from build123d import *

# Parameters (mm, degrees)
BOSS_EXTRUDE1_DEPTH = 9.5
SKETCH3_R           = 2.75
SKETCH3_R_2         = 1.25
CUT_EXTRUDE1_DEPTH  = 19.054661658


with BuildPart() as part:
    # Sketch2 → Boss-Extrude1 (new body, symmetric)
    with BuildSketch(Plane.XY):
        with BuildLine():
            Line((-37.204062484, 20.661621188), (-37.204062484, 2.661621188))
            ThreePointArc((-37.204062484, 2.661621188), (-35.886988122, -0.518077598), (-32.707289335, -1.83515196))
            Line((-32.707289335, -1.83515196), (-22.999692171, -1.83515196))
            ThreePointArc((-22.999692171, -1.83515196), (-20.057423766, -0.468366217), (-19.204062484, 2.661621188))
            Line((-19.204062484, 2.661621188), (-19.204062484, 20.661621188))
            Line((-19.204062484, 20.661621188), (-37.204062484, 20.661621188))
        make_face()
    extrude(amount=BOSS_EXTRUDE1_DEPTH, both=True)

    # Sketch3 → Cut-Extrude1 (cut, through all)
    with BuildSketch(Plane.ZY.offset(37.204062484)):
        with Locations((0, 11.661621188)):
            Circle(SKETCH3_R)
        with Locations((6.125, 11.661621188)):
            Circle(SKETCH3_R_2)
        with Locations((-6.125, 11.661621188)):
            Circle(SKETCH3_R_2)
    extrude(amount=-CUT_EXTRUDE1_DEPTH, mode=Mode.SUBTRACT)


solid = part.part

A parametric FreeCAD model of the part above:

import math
import FreeCAD as App
import Part
import Sketcher
from FreeCAD import Vector
Q = App.Units.Quantity

doc = App.newDocument("Part")
body = doc.addObject("PartDesign::Body", "Body")

sketch1 = doc.addObject("Sketcher::SketchObject", "Sketch")
body.addObject(sketch1)
sketch1.AttachmentSupport = (doc.XY_Plane, [""])
sketch1.MapMode = "FlatFace"
sketch1.addGeometry(Part.LineSegment(Vector(-37.2, 20.7, 0), Vector(-37.2, 2.7, 0)), False)
sketch1.addGeometry(Part.ArcOfCircle(Part.Circle(Vector(-32.7, 2.7, 0), Vector(0, 0, 1), 4.5), math.radians(-180), math.radians(-90)), False)
sketch1.addGeometry(Part.LineSegment(Vector(-32.7, -1.8, 0), Vector(-23, -1.8, 0)), False)
sketch1.addGeometry(Part.ArcOfCircle(Part.Circle(Vector(-23, 2, 0), Vector(0, 0, 1), 3.9), math.radians(-90), math.radians(10)), False)
sketch1.addGeometry(Part.LineSegment(Vector(-19.2, 2.7, 0), Vector(-19.2, 20.7, 0)), False)
sketch1.addGeometry(Part.LineSegment(Vector(-19.2, 20.7, 0), Vector(-37.2, 20.7, 0)), False)
sketch1.addConstraint(Sketcher.Constraint("Tangent", 0, 2, 1, 1))
sketch1.addConstraint(Sketcher.Constraint("Tangent", 1, 2, 2, 1))
sketch1.addConstraint(Sketcher.Constraint("Tangent", 2, 2, 3, 1))
sketch1.addConstraint(Sketcher.Constraint("Coincident", 3, 2, 4, 1))
sketch1.addConstraint(Sketcher.Constraint("Coincident", 4, 2, 5, 1))
sketch1.addConstraint(Sketcher.Constraint("Coincident", 5, 2, 0, 1))
sketch1.addConstraint(Sketcher.Constraint("Vertical", 0))
sketch1.addConstraint(Sketcher.Constraint("Horizontal", 2))
sketch1.addConstraint(Sketcher.Constraint("Vertical", 4))
sketch1.addConstraint(Sketcher.Constraint("Horizontal", 5))
sketch1.addConstraint(Sketcher.Constraint("Horizontal", 0, 2, 3, 2))
sketch1.addConstraint(Sketcher.Constraint("Equal", 5, 0))
sketch1.addConstraint(Sketcher.Constraint("DistanceX", 5, 2, 5, 1, Q("18 mm")))
sketch1.addConstraint(Sketcher.Constraint("Radius", 3, Q("3.850291 mm")))
sketch1.addConstraint(Sketcher.Constraint("Radius", 1, Q("4.496773 mm")))
sketch1.addConstraint(Sketcher.Constraint("DistanceX", 1, 3, -1, 1, Q("32.707289 mm")))
sketch1.addConstraint(Sketcher.Constraint("DistanceY", -1, 1, 1, 3, Q("2.661621 mm")))
pad1 = doc.addObject("PartDesign::Pad", "Pad")
body.addObject(pad1)
pad1.Profile = sketch1
pad1.Length = 19
pad1.Midplane = True

sketch2 = doc.addObject("Sketcher::SketchObject", "Sketch001")
body.addObject(sketch2)
sketch2.AttachmentSupport = (doc.YZ_Plane, [""])
sketch2.MapMode = "FlatFace"
sketch2.AttachmentOffset = App.Placement(Vector(0, 0, -37.204062), App.Rotation())
sketch2.addGeometry(Part.Circle(Vector(11.7, 0, 0), Vector(0, 0, 1), 2.8), False)
sketch2.addGeometry(Part.Circle(Vector(11.7, 6.1, 0), Vector(0, 0, 1), 1.2), False)
sketch2.addGeometry(Part.Circle(Vector(11.7, -6.1, 0), Vector(0, 0, 1), 1.2), False)
sketch2.addConstraint(Sketcher.Constraint("Equal", 1, 2))
sketch2.addConstraint(Sketcher.Constraint("Symmetric", 1, 3, 2, 3, -1))
sketch2.addConstraint(Sketcher.Constraint("PointOnObject", 0, 3, -1))
sketch2.addConstraint(Sketcher.Constraint("Vertical", 0, 3, 1, 3))
sketch2.addConstraint(Sketcher.Constraint("Diameter", 0, Q("5.5 mm")))
sketch2.addConstraint(Sketcher.Constraint("Diameter", 1, Q("2.5 mm")))
sketch2.addConstraint(Sketcher.Constraint("DistanceY", 2, 3, 1, 3, Q("12.25 mm")))
sketch2.addConstraint(Sketcher.Constraint("DistanceX", -1, 1, 0, 3, Q("11.661621 mm")))
pocket1 = doc.addObject("PartDesign::Pocket", "Pocket")
body.addObject(pocket1)
pocket1.Profile = sketch2
pocket1.Type = "ThroughAll"
pocket1.Reversed = True

doc.recompute()
